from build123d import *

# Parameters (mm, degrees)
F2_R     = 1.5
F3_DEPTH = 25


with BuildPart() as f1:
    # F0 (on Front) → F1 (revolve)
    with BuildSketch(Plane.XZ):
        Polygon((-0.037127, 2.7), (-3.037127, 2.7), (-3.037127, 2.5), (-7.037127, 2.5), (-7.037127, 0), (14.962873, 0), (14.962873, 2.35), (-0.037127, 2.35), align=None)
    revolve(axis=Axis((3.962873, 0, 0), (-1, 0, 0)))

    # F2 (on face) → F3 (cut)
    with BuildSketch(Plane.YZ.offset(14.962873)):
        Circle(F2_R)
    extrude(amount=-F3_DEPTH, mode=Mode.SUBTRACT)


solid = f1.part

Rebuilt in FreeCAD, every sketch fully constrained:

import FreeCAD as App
import Part
import Sketcher

V = App.Vector

doc = App.newDocument("Part")
body = doc.addObject("PartDesign::Body", "Body")

# Sketch on XZ plane
sketch1 = body.newObject("Sketcher::SketchObject", "Sketch")
sketch1.AttachmentSupport = (doc.getObject("XZ_Plane"), [""])
sketch1.MapMode = "FlatFace"
sketch1.addGeometry([
    Part.LineSegment(V(-0.037127, 2.7, 0), V(-3.037127, 2.7, 0)),  # 0
    Part.LineSegment(V(-3.037127, 2.7, 0), V(-3.037127, 2.5, 0)),  # 1
    Part.LineSegment(V(-3.037127, 2.5, 0), V(-7.037127, 2.5, 0)),  # 2
    Part.LineSegment(V(-7.037127, 2.5, 0), V(-7.037127, 0, 0)),  # 3
    Part.LineSegment(V(-7.037127, 0, 0), V(14.962873, 0, 0)),  # 4
    Part.LineSegment(V(14.962873, 0, 0), V(14.962873, 2.35, 0)),  # 5
    Part.LineSegment(V(14.962873, 2.35, 0), V(-0.037127, 2.35, 0)),  # 6
    Part.LineSegment(V(-0.037127, 2.35, 0), V(-0.037127, 2.7, 0)),  # 7
], False)
sketch1.addConstraint([
    Sketcher.Constraint("Coincident", 0, 2, 1, 1),
    Sketcher.Constraint("Coincident", 1, 2, 2, 1),
    Sketcher.Constraint("Coincident", 2, 2, 3, 1),
    Sketcher.Constraint("Coincident", 3, 2, 4, 1),
    Sketcher.Constraint("Coincident", 4, 2, 5, 1),
    Sketcher.Constraint("Coincident", 5, 2, 6, 1),
    Sketcher.Constraint("Coincident", 6, 2, 7, 1),
    Sketcher.Constraint("Coincident", 7, 2, 0, 1),
    Sketcher.Constraint("Horizontal", 0),
    Sketcher.Constraint("Vertical", 1),
    Sketcher.Constraint("Horizontal", 2),
    Sketcher.Constraint("Vertical", 3),
    Sketcher.Constraint("Horizontal", 4),
    Sketcher.Constraint("Vertical", 5),
    Sketcher.Constraint("Horizontal", 6),
    Sketcher.Constraint("Vertical", 7),
    Sketcher.Constraint("PointOnObject", 3, 2, -1),
    Sketcher.Constraint("DistanceX", 0, 2, 0, 1, 3.0),
    Sketcher.Constraint("DistanceX", 2, 2, 2, 1, 4.0),
    Sketcher.Constraint("DistanceX", 4, 1, 4, 2, 22.0),
    Sketcher.Constraint("DistanceY", 1, 2, 1, 1, 0.2),
    Sketcher.Constraint("DistanceY", 3, 2, 3, 1, 2.5),
    Sketcher.Constraint("DistanceY", 5, 1, 5, 2, 2.35),
    Sketcher.Constraint("DistanceX", 0, 2, -1, 1, 3.037127),
])
revolution = body.newObject("PartDesign::Revolution", "Revolution")
revolution.Profile = sketch1
revolution.ReferenceAxis = (sketch1, ["H_Axis"])
revolution.Angle = 360

# Sketch on YZ plane
sketch2 = body.newObject("Sketcher::SketchObject", "Sketch001")
sketch2.AttachmentSupport = (doc.getObject("YZ_Plane"), [""])
sketch2.MapMode = "FlatFace"
sketch2.AttachmentOffset = App.Placement(V(0, 0, 14.962873), App.Rotation())
sketch2.addGeometry(Part.Circle(V(0, 0, 0), V(0, 0, 1), 1.5), False)
sketch2.addConstraint([
    Sketcher.Constraint("Coincident", 0, 3, -1, 1),
    Sketcher.Constraint("Diameter", 0, 3.0),
])
pocket1 = body.newObject("PartDesign::Pocket", "Pocket")
pocket1.Profile = sketch2
pocket1.Length = 25

doc.recompute()
